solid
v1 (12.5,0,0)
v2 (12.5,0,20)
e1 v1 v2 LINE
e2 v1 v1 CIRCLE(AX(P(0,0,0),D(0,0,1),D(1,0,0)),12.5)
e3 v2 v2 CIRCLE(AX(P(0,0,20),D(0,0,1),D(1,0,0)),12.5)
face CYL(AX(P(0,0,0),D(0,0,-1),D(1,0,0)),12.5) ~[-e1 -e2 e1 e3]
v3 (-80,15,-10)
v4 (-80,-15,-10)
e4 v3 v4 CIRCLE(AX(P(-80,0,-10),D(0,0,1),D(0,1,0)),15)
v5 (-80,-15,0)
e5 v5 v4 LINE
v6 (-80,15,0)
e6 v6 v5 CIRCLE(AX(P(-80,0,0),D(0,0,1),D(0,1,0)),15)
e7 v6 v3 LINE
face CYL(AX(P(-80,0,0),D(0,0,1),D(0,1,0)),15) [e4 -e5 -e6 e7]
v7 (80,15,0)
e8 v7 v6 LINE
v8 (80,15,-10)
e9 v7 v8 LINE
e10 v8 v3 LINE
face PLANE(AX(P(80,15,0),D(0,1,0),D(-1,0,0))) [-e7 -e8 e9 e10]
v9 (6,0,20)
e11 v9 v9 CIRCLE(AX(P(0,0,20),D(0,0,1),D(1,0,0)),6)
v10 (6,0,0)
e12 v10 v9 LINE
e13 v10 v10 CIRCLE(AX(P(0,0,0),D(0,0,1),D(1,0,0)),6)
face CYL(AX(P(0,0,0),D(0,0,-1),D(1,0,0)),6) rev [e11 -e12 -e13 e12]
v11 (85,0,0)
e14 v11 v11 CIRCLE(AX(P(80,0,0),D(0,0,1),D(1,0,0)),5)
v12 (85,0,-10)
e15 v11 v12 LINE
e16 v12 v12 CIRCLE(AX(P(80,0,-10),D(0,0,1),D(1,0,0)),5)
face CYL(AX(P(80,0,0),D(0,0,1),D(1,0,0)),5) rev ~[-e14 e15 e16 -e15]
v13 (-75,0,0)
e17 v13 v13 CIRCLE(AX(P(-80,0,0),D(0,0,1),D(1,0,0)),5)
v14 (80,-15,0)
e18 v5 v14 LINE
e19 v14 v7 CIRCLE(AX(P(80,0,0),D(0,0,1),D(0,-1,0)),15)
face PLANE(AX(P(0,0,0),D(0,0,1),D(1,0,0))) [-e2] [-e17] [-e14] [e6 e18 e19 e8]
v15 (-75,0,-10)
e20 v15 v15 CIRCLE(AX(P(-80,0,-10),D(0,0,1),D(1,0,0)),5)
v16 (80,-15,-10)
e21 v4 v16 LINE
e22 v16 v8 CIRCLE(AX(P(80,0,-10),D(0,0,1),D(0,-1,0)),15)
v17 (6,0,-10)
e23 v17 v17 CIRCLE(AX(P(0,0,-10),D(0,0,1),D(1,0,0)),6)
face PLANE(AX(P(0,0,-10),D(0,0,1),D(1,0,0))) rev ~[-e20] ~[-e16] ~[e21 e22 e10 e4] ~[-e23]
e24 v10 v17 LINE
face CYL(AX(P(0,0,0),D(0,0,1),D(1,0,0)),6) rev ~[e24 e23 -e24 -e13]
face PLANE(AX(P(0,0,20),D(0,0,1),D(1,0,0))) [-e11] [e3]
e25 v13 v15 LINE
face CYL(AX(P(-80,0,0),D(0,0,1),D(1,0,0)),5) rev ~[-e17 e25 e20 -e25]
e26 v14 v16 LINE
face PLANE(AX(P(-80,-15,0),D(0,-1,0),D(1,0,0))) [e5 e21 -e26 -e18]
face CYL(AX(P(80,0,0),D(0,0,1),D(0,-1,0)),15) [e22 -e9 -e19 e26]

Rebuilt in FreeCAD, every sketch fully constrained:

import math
import FreeCAD as App
import Part
import Sketcher
from FreeCAD import Vector
Q = App.Units.Quantity

doc = App.newDocument("Part")
body = doc.addObject("PartDesign::Body", "Body")

sketch1 = body.newObject("Sketcher::SketchObject", "Sketch")
sketch1.AttachmentSupport = (doc.getObject("XY_Plane"), [""])
sketch1.MapMode = "FlatFace"
sketch1.addGeometry([
    Part.ArcOfCircle(Part.Circle(Vector(80, 0, 0), Vector(0, 0, 1), 15), math.radians(-90), math.radians(90)),
    Part.LineSegment(Vector(80, 15, 0), Vector(-80, 15, 0)),
    Part.ArcOfCircle(Part.Circle(Vector(-80, 0, 0), Vector(0, 0, 1), 15), math.radians(90), math.radians(270)),
    Part.LineSegment(Vector(-80, -15, 0), Vector(80, -15, 0)),
], False)
sketch1.addConstraint([
    Sketcher.Constraint("Tangent", 0, 2, 1, 1),
    Sketcher.Constraint("Tangent", 1, 2, 2, 1),
    Sketcher.Constraint("Tangent", 2, 2, 3, 1),
    Sketcher.Constraint("Tangent", 3, 2, 0, 1),
    Sketcher.Constraint("Horizontal", 1),
    Sketcher.Constraint("Horizontal", 3),
    Sketcher.Constraint("Symmetric", 0, 3, 2, 3, -1, 1),
    Sketcher.Constraint("Radius", 0, Q("15 mm")),
    Sketcher.Constraint("DistanceX", -1, 1, 0, 3, Q("80 mm")),
])
pad1 = body.newObject("PartDesign::Pad", "Pad")
pad1.Profile = sketch1
pad1.Length = 10
pad1.Reversed = True

sketch2 = body.newObject("Sketcher::SketchObject", "Sketch001")
sketch2.AttachmentSupport = (doc.getObject("XY_Plane"), [""])
sketch2.MapMode = "FlatFace"
sketch2.addGeometry(Part.Circle(Vector(80, 0, 0), Vector(0, 0, 1), 5), False)
sketch2.addConstraint([
    Sketcher.Constraint("PointOnObject", 0, 3, -1),
    Sketcher.Constraint("Diameter", 0, Q("10 mm")),
    Sketcher.Constraint("DistanceX", -1, 1, 0, 3, Q("80 mm")),
])
pocket1 = body.newObject("PartDesign::Pocket", "Pocket")
pocket1.Profile = sketch2
pocket1.Length = 10

sketch3 = body.newObject("Sketcher::SketchObject", "Sketch002")
sketch3.AttachmentSupport = (doc.getObject("XY_Plane"), [""])
sketch3.MapMode = "FlatFace"
sketch3.addGeometry(Part.Circle(Vector(-80, 0, 0), Vector(0, 0, 1), 5), False)
sketch3.addConstraint([
    Sketcher.Constraint("PointOnObject", 0, 3, -1),
    Sketcher.Constraint("Diameter", 0, Q("10 mm")),
    Sketcher.Constraint("DistanceX", 0, 3, -1, 1, Q("80 mm")),
])
pocket2 = body.newObject("PartDesign::Pocket", "Pocket001")
pocket2.Profile = sketch3
pocket2.Length = 10

sketch4 = body.newObject("Sketcher::SketchObject", "Sketch003")
sketch4.AttachmentSupport = (doc.getObject("XY_Plane"), [""])
sketch4.MapMode = "FlatFace"
sketch4.addGeometry([
    Part.Circle(Vector(0, 0, 0), Vector(0, 0, 1), 12.5),
    Part.Circle(Vector(0, 0, 0), Vector(0, 0, 1), 6),
], False)
sketch4.addConstraint([
    Sketcher.Constraint("Coincident", 0, 3, -1, 1),
    Sketcher.Constraint("Coincident", 1, 3, -1, 1),
    Sketcher.Constraint("Diameter", 0, Q("25 mm")),
    Sketcher.Constraint("Diameter", 1, Q("12 mm")),
])
pad2 = body.newObject("PartDesign::Pad", "Pad001")
pad2.Profile = sketch4
pad2.Length = 20

sketch5 = body.newObject("Sketcher::SketchObject", "Sketch004")
sketch5.AttachmentSupport = (doc.getObject("XY_Plane"), [""])
sketch5.MapMode = "FlatFace"
sketch5.addGeometry(Part.Circle(Vector(0, 0, 0), Vector(0, 0, 1), 6), False)
sketch5.addConstraint([
    Sketcher.Constraint("Coincident", 0, 3, -1, 1),
    Sketcher.Constraint("Diameter", 0, Q("12 mm")),
])
pocket3 = body.newObject("PartDesign::Pocket", "Pocket002")
pocket3.Profile = sketch5
pocket3.Length = 2850
pocket3.Midplane = True

doc.recompute()
